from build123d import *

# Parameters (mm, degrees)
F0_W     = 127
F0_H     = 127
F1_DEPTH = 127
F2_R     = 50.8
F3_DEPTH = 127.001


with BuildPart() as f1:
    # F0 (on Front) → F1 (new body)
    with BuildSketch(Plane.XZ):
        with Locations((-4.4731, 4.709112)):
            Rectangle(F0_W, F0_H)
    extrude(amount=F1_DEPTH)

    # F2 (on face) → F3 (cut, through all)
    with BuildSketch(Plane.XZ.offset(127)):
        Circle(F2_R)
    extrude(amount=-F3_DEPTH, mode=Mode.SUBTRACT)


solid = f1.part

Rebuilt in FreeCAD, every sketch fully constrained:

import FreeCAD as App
import Part
import Sketcher

V = App.Vector
Q = App.Units.Quantity


def add_polygon(sketch, points):
    """Adds a closed chain of lines whose ends are joined by coincident constraints."""
    first, n = sketch.GeometryCount, len(points)
    for a, b in zip(points, points[1:] + points[:1]):
        sketch.addGeometry(Part.LineSegment(App.Vector(*a, 0), App.Vector(*b, 0)), False)
    for i in range(n):
        sketch.addConstraint(Sketcher.Constraint("Coincident", first + i, 2, first + (i + 1) % n, 1))

doc = App.newDocument("Part")
body = doc.addObject("PartDesign::Body", "Body")

# Sketch on XZ plane
sketch1 = body.newObject("Sketcher::SketchObject", "Sketch")
sketch1.AttachmentSupport = (doc.getObject("XZ_Plane"), [""])
sketch1.MapMode = "FlatFace"
add_polygon(sketch1, [(-67.9731, 68.209112), (-67.9731, -58.790888), (59.0269, -58.790888), (59.0269, 68.209112)])  # lines 0-3
sketch1.addConstraint([
    Sketcher.Constraint("Vertical", 0),
    Sketcher.Constraint("Horizontal", 1),
    Sketcher.Constraint("Vertical", 2),
    Sketcher.Constraint("Horizontal", 3),
    Sketcher.Constraint("Equal", 3, 0),
    Sketcher.Constraint("DistanceX", 1, 1, 1, 2, Q("5 in")),
    Sketcher.Constraint("DistanceX", 0, 2, -1, 1, 67.9731),
    Sketcher.Constraint("DistanceY", 0, 2, -1, 1, 58.790888),
])
pad1 = body.newObject("PartDesign::Pad", "Pad")
pad1.Profile = sketch1
pad1.Length = Q("5 in")

# Sketch on XZ plane
sketch2 = body.newObject("Sketcher::SketchObject", "Sketch001")
sketch2.AttachmentSupport = (doc.getObject("XZ_Plane"), [""])
sketch2.MapMode = "FlatFace"
sketch2.AttachmentOffset = App.Placement(V(0, 0, 5 * 25.4), App.Rotation())
sketch2.addGeometry(Part.Circle(V(0, 0, 0), V(0, 0, 1), 50.8), False)
sketch2.addConstraint([
    Sketcher.Constraint("Coincident", 0, 3, -1, 1),
    Sketcher.Constraint("Diameter", 0, Q("4 in")),
])
pocket1 = body.newObject("PartDesign::Pocket", "Pocket")
pocket1.Profile = sketch2
pocket1.Type = "ThroughAll"

doc.recompute()
